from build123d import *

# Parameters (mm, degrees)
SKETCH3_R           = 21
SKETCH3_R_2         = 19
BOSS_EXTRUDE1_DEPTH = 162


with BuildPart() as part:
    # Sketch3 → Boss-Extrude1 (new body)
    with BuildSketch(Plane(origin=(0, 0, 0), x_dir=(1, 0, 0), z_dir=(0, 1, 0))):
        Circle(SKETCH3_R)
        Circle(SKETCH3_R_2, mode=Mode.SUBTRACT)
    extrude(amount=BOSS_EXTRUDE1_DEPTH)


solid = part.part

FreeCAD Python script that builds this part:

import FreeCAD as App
import Part
import Sketcher

V = App.Vector

doc = App.newDocument("Part")
body = doc.addObject("PartDesign::Body", "Body")

# Sketch on XZ plane
sketch1 = doc.addObject("Sketcher::SketchObject", "Sketch")
body.addObject(sketch1)
sketch1.AttachmentSupport = (doc.XZ_Plane, [""])
sketch1.MapMode = "FlatFace"
sketch1.addGeometry(Part.Circle(V(0, 0, 0), V(0, 0, 1), 21), False)
sketch1.addGeometry(Part.Circle(V(0, 0, 0), V(0, 0, 1), 19), False)
sketch1.addConstraint(Sketcher.Constraint("Coincident", 0, 3, -1, 1))
sketch1.addConstraint(Sketcher.Constraint("Coincident", 1, 3, -1, 1))
sketch1.addConstraint(Sketcher.Constraint("Diameter", 0, 42.0))
sketch1.addConstraint(Sketcher.Constraint("Diameter", 1, 38.0))
pad1 = doc.addObject("PartDesign::Pad", "Pad")
body.addObject(pad1)
pad1.Profile = sketch1
pad1.Length = 162
pad1.Reversed = True

doc.recompute()
